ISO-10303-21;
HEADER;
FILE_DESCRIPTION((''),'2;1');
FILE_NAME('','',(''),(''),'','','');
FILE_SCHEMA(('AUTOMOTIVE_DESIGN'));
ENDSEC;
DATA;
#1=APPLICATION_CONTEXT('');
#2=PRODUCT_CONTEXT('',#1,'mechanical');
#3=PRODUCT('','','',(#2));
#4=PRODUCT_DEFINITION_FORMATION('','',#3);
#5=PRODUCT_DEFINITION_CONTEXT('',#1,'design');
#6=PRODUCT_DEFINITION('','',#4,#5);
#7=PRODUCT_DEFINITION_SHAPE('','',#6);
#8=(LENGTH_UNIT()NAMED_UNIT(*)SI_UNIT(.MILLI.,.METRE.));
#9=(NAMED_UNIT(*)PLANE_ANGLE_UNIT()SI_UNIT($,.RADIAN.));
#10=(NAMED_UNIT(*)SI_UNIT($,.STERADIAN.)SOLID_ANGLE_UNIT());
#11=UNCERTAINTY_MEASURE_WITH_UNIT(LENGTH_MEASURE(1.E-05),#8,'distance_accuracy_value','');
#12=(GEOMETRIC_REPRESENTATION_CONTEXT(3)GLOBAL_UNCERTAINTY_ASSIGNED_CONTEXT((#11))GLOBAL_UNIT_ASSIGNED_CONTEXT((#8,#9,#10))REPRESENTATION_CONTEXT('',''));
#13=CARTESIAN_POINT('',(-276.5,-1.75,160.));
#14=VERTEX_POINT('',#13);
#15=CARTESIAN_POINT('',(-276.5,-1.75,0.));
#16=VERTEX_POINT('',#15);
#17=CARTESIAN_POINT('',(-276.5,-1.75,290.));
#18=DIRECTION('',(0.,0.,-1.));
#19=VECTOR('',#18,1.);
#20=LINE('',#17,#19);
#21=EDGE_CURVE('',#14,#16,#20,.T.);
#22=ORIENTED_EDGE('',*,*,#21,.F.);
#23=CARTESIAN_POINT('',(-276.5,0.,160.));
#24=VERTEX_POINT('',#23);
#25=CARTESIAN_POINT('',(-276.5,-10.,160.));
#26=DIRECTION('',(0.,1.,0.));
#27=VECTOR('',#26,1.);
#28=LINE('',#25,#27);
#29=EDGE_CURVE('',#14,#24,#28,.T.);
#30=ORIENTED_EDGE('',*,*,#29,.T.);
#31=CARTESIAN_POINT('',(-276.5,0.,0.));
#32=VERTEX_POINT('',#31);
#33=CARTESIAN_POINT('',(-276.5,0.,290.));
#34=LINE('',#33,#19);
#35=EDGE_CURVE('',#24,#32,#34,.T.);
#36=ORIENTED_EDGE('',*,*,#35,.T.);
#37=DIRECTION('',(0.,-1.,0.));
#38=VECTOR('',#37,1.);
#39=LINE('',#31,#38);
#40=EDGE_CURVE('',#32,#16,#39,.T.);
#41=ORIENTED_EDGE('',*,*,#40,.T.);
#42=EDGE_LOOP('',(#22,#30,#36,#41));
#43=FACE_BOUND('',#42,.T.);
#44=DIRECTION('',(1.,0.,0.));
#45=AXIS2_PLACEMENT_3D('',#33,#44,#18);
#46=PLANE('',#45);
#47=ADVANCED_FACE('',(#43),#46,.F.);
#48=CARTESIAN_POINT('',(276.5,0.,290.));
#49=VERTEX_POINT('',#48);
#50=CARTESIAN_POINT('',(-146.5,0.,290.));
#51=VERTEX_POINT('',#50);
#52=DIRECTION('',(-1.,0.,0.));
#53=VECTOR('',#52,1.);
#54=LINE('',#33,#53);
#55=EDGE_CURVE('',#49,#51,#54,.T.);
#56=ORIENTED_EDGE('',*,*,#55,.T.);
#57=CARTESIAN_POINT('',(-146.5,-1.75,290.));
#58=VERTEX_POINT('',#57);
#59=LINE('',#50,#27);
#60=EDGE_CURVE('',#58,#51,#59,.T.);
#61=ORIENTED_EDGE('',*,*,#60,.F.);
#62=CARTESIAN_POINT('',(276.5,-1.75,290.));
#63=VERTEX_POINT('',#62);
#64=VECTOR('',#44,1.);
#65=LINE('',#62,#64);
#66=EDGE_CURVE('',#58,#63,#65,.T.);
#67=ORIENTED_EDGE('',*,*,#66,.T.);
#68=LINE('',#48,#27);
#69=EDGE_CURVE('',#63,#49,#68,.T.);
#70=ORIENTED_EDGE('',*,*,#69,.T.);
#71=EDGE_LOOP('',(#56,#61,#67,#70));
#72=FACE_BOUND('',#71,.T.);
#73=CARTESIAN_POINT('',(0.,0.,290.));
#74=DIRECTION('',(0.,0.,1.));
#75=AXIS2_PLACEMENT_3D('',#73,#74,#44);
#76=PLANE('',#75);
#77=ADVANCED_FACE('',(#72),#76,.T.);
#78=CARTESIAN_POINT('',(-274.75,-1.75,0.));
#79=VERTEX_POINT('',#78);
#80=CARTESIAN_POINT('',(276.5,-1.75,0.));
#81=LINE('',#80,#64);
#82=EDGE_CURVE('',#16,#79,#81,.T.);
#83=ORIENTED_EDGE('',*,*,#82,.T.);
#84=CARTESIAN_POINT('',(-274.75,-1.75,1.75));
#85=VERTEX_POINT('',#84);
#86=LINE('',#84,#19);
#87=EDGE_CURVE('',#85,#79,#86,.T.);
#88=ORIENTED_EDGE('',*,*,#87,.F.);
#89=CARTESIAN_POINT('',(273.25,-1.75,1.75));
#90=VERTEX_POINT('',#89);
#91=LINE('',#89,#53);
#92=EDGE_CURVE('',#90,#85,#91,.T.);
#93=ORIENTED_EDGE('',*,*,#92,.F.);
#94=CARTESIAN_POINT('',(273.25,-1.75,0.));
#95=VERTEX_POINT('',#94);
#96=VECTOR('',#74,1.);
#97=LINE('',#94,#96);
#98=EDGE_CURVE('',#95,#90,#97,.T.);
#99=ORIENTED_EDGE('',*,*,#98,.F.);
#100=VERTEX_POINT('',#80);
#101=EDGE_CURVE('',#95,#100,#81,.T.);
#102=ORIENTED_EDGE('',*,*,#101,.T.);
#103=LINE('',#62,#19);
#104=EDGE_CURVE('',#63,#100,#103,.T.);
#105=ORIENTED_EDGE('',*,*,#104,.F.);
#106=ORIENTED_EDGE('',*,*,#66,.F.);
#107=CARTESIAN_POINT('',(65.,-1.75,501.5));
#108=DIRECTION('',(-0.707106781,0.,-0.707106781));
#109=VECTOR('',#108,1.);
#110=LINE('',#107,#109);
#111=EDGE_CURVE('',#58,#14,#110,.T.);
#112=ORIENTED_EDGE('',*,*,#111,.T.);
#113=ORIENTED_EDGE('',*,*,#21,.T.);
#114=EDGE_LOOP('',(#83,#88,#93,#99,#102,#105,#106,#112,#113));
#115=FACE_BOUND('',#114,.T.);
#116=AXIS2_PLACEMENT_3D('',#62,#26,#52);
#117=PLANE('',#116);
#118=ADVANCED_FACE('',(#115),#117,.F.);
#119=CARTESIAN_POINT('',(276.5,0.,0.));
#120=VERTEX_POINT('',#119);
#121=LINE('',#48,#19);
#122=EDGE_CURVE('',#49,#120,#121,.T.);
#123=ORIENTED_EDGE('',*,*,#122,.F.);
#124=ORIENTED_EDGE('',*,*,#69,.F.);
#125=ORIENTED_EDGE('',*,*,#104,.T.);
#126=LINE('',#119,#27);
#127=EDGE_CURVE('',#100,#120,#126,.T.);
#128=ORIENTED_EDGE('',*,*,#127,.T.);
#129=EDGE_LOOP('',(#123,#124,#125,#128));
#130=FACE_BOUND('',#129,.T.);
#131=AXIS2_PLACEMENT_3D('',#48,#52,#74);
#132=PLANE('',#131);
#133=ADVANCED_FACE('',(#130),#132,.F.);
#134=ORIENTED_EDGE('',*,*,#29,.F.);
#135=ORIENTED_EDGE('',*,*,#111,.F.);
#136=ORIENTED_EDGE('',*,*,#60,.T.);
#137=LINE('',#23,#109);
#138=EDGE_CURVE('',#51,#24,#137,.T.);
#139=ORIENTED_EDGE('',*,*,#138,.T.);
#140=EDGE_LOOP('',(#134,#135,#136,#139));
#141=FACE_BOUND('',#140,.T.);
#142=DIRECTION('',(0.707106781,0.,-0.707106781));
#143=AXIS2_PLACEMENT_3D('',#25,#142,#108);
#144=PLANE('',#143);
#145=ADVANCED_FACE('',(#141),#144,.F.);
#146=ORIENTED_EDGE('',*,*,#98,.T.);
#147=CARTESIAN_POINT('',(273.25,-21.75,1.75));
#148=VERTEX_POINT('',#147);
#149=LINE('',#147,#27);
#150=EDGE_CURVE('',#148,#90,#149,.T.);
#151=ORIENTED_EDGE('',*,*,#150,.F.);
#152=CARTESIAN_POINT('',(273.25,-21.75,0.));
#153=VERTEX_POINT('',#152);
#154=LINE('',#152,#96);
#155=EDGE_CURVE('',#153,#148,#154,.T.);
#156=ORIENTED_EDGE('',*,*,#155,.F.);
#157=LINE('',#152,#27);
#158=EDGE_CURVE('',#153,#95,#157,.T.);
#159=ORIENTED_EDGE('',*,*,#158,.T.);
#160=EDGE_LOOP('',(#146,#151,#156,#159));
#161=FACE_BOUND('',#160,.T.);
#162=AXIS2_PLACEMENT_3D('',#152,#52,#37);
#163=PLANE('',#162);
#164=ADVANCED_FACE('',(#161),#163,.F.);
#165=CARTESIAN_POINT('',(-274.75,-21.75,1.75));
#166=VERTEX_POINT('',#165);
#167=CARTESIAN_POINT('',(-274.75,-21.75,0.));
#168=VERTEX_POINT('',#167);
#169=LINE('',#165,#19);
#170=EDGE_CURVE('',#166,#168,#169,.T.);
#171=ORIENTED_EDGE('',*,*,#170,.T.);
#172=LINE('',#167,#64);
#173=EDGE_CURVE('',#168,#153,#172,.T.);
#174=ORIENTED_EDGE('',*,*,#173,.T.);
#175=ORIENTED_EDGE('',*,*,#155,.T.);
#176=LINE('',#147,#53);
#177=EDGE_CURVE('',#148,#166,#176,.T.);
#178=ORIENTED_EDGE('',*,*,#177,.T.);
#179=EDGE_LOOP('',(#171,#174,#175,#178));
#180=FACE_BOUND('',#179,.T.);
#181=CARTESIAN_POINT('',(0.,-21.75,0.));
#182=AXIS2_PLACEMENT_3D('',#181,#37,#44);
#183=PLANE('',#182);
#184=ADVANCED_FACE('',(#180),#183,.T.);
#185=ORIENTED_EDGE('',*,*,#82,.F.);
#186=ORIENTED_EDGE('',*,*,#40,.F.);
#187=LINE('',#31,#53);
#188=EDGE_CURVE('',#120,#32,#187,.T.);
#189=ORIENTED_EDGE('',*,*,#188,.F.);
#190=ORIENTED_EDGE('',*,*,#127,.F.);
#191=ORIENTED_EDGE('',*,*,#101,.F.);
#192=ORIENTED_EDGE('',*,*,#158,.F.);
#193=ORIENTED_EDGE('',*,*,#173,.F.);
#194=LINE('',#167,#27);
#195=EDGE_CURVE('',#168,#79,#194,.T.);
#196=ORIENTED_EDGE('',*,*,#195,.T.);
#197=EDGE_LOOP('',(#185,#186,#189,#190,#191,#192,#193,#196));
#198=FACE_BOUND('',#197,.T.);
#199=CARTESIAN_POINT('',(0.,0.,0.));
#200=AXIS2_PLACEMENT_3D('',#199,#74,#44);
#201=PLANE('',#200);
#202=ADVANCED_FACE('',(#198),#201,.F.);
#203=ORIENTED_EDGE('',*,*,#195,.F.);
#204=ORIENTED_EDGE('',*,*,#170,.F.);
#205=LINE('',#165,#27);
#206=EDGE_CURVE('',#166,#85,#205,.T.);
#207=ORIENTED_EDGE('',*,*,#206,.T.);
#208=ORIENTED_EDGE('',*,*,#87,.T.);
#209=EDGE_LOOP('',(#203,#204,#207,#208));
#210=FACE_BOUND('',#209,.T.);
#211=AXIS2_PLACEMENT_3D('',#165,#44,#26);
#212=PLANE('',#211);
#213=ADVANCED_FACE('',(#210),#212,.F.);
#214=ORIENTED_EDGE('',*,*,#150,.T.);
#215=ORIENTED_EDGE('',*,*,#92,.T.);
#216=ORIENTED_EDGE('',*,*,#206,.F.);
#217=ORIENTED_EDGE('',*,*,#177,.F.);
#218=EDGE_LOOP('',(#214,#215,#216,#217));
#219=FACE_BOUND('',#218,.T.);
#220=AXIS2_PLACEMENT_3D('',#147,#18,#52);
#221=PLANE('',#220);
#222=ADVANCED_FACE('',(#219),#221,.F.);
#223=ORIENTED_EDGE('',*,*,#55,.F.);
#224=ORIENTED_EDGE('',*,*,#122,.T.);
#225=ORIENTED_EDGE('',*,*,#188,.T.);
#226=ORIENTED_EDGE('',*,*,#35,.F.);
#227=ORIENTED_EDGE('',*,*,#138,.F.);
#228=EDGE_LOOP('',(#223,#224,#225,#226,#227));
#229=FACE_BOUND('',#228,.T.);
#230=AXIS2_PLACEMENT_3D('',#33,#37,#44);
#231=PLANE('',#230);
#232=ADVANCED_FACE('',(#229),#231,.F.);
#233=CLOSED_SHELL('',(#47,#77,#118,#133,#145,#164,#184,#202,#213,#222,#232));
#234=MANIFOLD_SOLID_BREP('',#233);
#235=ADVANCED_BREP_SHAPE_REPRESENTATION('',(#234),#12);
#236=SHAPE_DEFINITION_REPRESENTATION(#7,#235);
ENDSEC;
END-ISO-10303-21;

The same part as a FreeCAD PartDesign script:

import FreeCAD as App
import Part
import Sketcher

V = App.Vector
Q = App.Units.Quantity


def add_polygon(sketch, points):
    """Adds a closed chain of lines whose ends are joined by coincident constraints."""
    first, n = sketch.GeometryCount, len(points)
    for a, b in zip(points, points[1:] + points[:1]):
        sketch.addGeometry(Part.LineSegment(App.Vector(*a, 0), App.Vector(*b, 0)), False)
    for i in range(n):
        sketch.addConstraint(Sketcher.Constraint("Coincident", first + i, 2, first + (i + 1) % n, 1))

doc = App.newDocument("Part")
body = doc.addObject("PartDesign::Body", "Body")

sketch1 = body.newObject("Sketcher::SketchObject", "Sketch")
sketch1.AttachmentSupport = (doc.getObject("XY_Plane"), [""])
sketch1.MapMode = "FlatFace"
add_polygon(sketch1, [(-276.5, 0), (-276.5, -1.8), (276.5, -1.8), (276.5, 0)])
sketch1.addConstraint([
    Sketcher.Constraint("Vertical", 0),
    Sketcher.Constraint("Horizontal", 1),
    Sketcher.Constraint("Vertical", 2),
    Sketcher.Constraint("Horizontal", 3),
    Sketcher.Constraint("Symmetric", 2, 2, 3, 2, -1, 1),
    Sketcher.Constraint("DistanceX", 1, 1, 1, 2, Q("553 mm")),
    Sketcher.Constraint("DistanceY", 0, 2, 0, 1, Q("1.75 mm")),
])
pad1 = body.newObject("PartDesign::Pad", "Pad")
pad1.Profile = sketch1
pad1.Length = 290

sketch2 = body.newObject("Sketcher::SketchObject", "Sketch001")
sketch2.AttachmentSupport = (doc.getObject("XZ_Plane"), [""])
sketch2.MapMode = "FlatFace"
add_polygon(sketch2, [(-276, 160), (-276, 290), (-146, 290)])
sketch2.addConstraint([
    Sketcher.Constraint("Vertical", 0),
    Sketcher.Constraint("Horizontal", 1),
    Sketcher.Constraint("Equal", 1, 0),
    Sketcher.Constraint("DistanceX", 1, 1, 1, 2, Q("130 mm")),
    Sketcher.Constraint("DistanceY", -1, 1, 0, 2, Q("290 mm")),
    Sketcher.Constraint("DistanceX", 0, 2, -1, 1, Q("276.5 mm")),
])
pocket1 = body.newObject("PartDesign::Pocket", "Pocket")
pocket1.Profile = sketch2
pocket1.Length = 10
pocket1.Reversed = True

sketch3 = body.newObject("Sketcher::SketchObject", "Sketch002")
sketch3.AttachmentSupport = (doc.getObject("XZ_Plane"), [""])
sketch3.MapMode = "FlatFace"
sketch3.AttachmentOffset = App.Placement(V(0, 0, 1.75), App.Rotation())
add_polygon(sketch3, [(-274.8, 1.8), (-274.8, 0), (273.2, 0), (273.2, 1.8)])
sketch3.addConstraint([
    Sketcher.Constraint("Vertical", 0),
    Sketcher.Constraint("Horizontal", 1),
    Sketcher.Constraint("Vertical", 2),
    Sketcher.Constraint("Horizontal", 3),
    Sketcher.Constraint("PointOnObject", 0, 2, -1),
    Sketcher.Constraint("DistanceX", 1, 1, 1, 2, Q("548 mm")),
    Sketcher.Constraint("DistanceY", 0, 2, 0, 1, Q("1.75 mm")),
    Sketcher.Constraint("DistanceX", 0, 2, -1, 1, Q("274.75 mm")),
])
pad2 = body.newObject("PartDesign::Pad", "Pad001")
pad2.Profile = sketch3
pad2.Length = 20

doc.recompute()
